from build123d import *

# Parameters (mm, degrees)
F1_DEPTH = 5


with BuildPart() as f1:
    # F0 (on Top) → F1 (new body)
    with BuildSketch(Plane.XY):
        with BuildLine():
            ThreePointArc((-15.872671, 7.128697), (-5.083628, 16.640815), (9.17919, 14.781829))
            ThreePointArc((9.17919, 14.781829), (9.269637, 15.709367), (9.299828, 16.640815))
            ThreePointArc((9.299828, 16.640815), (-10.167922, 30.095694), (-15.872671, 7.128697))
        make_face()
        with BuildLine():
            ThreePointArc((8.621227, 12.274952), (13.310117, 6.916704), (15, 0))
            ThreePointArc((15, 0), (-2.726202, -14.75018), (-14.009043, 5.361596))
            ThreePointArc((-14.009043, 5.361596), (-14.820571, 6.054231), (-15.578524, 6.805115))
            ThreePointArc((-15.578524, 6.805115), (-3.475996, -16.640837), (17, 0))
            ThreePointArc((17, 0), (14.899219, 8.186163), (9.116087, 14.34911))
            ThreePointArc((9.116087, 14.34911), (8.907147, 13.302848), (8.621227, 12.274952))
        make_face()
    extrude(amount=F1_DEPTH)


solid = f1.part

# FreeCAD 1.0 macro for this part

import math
import FreeCAD as App
import Part
import Sketcher

doc = App.newDocument("Part")
params = doc.addObject("Spreadsheet::Sheet", "Params")
for row, (alias, value) in enumerate([
    ("sketch1_radius", "15 mm"),
    ("sketch1_radius2", "17 mm"),
    ("sketch1_radius3", "17.4 mm"),
    ("pad1_length", "5 mm"),
], start=1):
    params.set(f"A{row}", alias)
    params.set(f"B{row}", "=" + value)
    params.setAlias(f"B{row}", alias)

body = doc.addObject("PartDesign::Body", "Body")
body.AllowCompound = True

# Sketch on XY plane
sketch1 = body.newObject("Sketcher::SketchObject", "Sketch")
sketch1.AttachmentSupport = (doc.getObject("XY_Plane"), [""])
sketch1.MapMode = "FlatFace"
sketch1.addGeometry(Part.ArcOfCircle(Part.Circle(App.Vector(0, 0, 0), App.Vector(0, 0, 1), 17.4), math.radians(58.160631), math.radians(155.814308)), False)
sketch1.addGeometry(Part.ArcOfCircle(Part.Circle(App.Vector(-5.083543, 16.64081, 0), App.Vector(0, 0, 1), 14.383371), math.radians(-7.425973), math.radians(0.000022)), False)
sketch1.addGeometry(Part.ArcOfCircle(Part.Circle(App.Vector(-5.083628, 16.640815, 0), App.Vector(0, 0, 1), 14.383456), math.radians(0.000002), math.radians(221.400888)), False)
sketch1.addGeometry(Part.ArcOfCircle(Part.Circle(App.Vector(0.000002, 0.000001, 0), App.Vector(0, 0, 1), 14.999998), math.radians(-0.000004), math.radians(54.917985)), False)
sketch1.addGeometry(Part.ArcOfCircle(Part.Circle(App.Vector(0, 0, 0), App.Vector(0, 0, 1), 15), math.radians(159.056957), math.radians(359.999999)), False)
sketch1.addGeometry(Part.ArcOfCircle(Part.Circle(App.Vector(-5.083584, 16.64087, 0), App.Vector(0, 0, 1), 14.383527), math.radians(-136.857057), math.radians(-128.355097)), False)
sketch1.addGeometry(Part.ArcOfCircle(Part.Circle(App.Vector(0, 0, 0), App.Vector(0, 0, 1), 17), math.radians(156.40301), math.radians(360)), False)
sketch1.addGeometry(Part.ArcOfCircle(Part.Circle(App.Vector(-0.000002, -0.000001, 0), App.Vector(0, 0, 1), 17.000002), math.radians(0.000003), math.radians(57.571924)), False)
sketch1.addGeometry(Part.ArcOfCircle(Part.Circle(App.Vector(-5.083693, 16.640832, 0), App.Vector(0, 0, 1), 14.383523), math.radians(-17.669954), math.radians(-9.167991)), False)
sketch1.addConstraint(Sketcher.Constraint("Coincident", 0, 1, 1, 1))
sketch1.addConstraint(Sketcher.Constraint("Tangent", 1, 2, 2, 1))
sketch1.addConstraint(Sketcher.Constraint("Coincident", 2, 2, 0, 2))
sketch1.addConstraint(Sketcher.Constraint("Tangent", 3, 1, 4, 2))
sketch1.addConstraint(Sketcher.Constraint("Coincident", 4, 1, 5, 2))
sketch1.addConstraint(Sketcher.Constraint("Coincident", 5, 1, 6, 1))
sketch1.addConstraint(Sketcher.Constraint("Tangent", 6, 2, 7, 1))
sketch1.addConstraint(Sketcher.Constraint("Coincident", 7, 2, 8, 2))
sketch1.addConstraint(Sketcher.Constraint("Coincident", 8, 1, 3, 2))
sketch1.addConstraint(Sketcher.Constraint("Coincident", 0, 3, -1, 1))
sketch1.addConstraint(Sketcher.Constraint("Coincident", 3, 3, -1, 1))
sketch1.addConstraint(Sketcher.Constraint("Coincident", 6, 3, -1, 1))
sketch1.addConstraint(Sketcher.Constraint("Equal", 3, 4))
sketch1.addConstraint(Sketcher.Constraint("Equal", 6, 7))
sketch1.addConstraint(Sketcher.Constraint("PointOnObject", 3, 1, -1))
sketch1.addConstraint(Sketcher.Constraint("PointOnObject", 6, 2, -1))
sketch1.addConstraint(Sketcher.Constraint("Horizontal", 2, 3, 1, 2))
sketch1.addConstraint(Sketcher.Constraint("Radius", 4, 15.0))
sketch1.addConstraint(Sketcher.Constraint("Radius", 6, 17.0))
sketch1.addConstraint(Sketcher.Constraint("Radius", 0, 17.4))
sketch1.addConstraint(Sketcher.Constraint("Radius", 1, 14.383371))
sketch1.addConstraint(Sketcher.Constraint("Radius", 2, 14.383456))
sketch1.addConstraint(Sketcher.Constraint("Radius", 5, 14.383527))
sketch1.addConstraint(Sketcher.Constraint("Radius", 8, 14.383523))
sketch1.addConstraint(Sketcher.Constraint("DistanceY", 4, 1, 2, 2, 1.767101))
sketch1.addConstraint(Sketcher.Constraint("DistanceX", 4, 1, 1, 3, 8.9255))
sketch1.addConstraint(Sketcher.Constraint("DistanceY", 5, 1, 2, 3, 9.8357))
sketch1.addConstraint(Sketcher.Constraint("DistanceY", 7, 2, 1, 3, 2.2917))
sketch1.addConstraint(Sketcher.Constraint("DistanceX", 8, 1, 1, 2, 0.678601))
sketch1.addConstraint(Sketcher.Constraint("DistanceY", -1, 1, 1, 3, 16.64081))
sketch1.setExpression("Constraints[17]", "Params.sketch1_radius")
sketch1.setExpression("Constraints[18]", "Params.sketch1_radius2")
sketch1.setExpression("Constraints[19]", "Params.sketch1_radius3")
pad1 = body.newObject("PartDesign::Pad", "Pad")
pad1.Profile = sketch1
pad1.setExpression("Length", "Params.pad1_length")

doc.recompute()
